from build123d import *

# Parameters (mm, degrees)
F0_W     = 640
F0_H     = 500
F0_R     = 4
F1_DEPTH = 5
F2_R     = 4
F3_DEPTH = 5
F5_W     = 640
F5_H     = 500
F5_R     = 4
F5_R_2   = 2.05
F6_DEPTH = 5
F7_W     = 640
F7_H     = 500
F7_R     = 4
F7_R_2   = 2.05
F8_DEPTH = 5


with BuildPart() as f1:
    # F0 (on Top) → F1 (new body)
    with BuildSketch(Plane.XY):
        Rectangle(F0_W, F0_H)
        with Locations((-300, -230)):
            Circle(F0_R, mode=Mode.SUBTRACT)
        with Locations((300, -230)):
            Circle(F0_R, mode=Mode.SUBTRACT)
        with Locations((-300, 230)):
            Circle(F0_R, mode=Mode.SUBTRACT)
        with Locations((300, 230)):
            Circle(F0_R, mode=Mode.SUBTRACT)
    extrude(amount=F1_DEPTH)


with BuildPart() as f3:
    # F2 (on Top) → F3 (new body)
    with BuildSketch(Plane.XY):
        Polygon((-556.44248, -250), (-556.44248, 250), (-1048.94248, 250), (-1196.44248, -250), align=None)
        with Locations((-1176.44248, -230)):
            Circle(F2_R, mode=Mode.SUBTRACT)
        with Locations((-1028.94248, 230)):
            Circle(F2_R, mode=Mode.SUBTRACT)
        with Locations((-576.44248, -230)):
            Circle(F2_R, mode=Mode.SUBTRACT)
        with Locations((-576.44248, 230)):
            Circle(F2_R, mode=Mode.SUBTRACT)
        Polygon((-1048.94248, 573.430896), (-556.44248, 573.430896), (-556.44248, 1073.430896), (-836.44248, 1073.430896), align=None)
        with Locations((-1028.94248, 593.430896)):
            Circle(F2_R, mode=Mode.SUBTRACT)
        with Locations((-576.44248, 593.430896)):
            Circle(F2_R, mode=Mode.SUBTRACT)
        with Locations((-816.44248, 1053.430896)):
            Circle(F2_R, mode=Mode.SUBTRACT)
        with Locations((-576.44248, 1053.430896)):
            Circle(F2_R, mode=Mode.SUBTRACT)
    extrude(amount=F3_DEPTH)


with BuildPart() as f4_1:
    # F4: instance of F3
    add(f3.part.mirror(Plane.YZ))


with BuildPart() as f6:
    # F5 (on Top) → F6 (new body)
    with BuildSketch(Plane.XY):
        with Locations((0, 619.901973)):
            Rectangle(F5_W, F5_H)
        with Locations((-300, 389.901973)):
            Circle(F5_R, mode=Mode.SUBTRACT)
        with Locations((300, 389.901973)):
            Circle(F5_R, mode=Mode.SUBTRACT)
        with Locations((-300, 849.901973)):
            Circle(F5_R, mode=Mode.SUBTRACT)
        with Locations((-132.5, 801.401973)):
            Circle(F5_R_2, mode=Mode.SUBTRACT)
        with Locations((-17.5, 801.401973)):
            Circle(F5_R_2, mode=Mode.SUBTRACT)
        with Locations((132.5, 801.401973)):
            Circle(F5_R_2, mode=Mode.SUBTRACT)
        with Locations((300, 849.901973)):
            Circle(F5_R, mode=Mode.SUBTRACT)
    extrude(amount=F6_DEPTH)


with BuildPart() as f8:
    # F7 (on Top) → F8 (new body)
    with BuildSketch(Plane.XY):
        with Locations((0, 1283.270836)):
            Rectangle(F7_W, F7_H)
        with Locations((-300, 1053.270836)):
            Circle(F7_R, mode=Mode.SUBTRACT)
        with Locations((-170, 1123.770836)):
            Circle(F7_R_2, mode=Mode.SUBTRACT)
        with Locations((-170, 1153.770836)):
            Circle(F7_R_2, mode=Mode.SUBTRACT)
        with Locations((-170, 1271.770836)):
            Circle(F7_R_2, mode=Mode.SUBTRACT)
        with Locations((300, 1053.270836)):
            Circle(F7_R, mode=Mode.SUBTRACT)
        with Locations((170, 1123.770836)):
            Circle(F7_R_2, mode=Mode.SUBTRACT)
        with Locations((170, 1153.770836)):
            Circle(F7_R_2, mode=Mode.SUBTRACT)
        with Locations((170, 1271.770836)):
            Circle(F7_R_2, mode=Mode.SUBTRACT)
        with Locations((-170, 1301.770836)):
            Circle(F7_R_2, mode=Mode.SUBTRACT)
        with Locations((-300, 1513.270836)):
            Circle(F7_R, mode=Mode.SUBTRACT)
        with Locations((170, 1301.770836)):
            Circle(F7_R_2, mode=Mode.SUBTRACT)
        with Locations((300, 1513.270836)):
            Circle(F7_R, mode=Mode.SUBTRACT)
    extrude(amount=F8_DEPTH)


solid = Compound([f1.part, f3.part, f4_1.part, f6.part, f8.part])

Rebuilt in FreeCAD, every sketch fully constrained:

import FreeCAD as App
import Part
import Sketcher

V = App.Vector
Q = App.Units.Quantity

doc = App.newDocument("Part")
params = doc.addObject("Spreadsheet::Sheet", "Params")
for row, (alias, value) in enumerate([
    ("sketch1_diameter", "8 mm"),
    ("sketch1_width", "640 mm"),
    ("sketch1_height", "500 mm"),
    ("pad1_length", "5 mm"),
    ("sketch2_diameter", "8 mm"),
    ("sketch2_width", "640 mm"),
    ("sketch2_width2", "280 mm"),
    ("sketch2_height", "500 mm"),
    ("sketch2_width3", "492.5 mm"),
    ("pad2_length", "5 mm"),
    ("sketch3_diameter", "8 mm"),
    ("sketch3_diameter2", "4.1 mm"),
    ("sketch3_width", "640 mm"),
    ("sketch3_height", "500 mm"),
    ("pad3_length", "5 mm"),
    ("sketch4_diameter", "8 mm"),
    ("sketch4_diameter2", "4.1 mm"),
    ("sketch4_width", "640 mm"),
    ("sketch4_height", "500 mm"),
    ("pad4_length", "5 mm"),
], start=1):
    params.set(f"A{row}", alias)
    params.set(f"B{row}", "=" + value)
    params.setAlias(f"B{row}", alias)

body = doc.addObject("PartDesign::Body", "Body")

# Sketch on XY plane
sketch1 = body.newObject("Sketcher::SketchObject", "Sketch")
sketch1.AttachmentSupport = (doc.getObject("XY_Plane"), [""])
sketch1.MapMode = "FlatFace"
sketch1.addGeometry(Part.LineSegment(V(-320, 250, 0), V(-320, -250, 0)), False)
sketch1.addGeometry(Part.LineSegment(V(-320, -250, 0), V(320, -250, 0)), False)
sketch1.addGeometry(Part.LineSegment(V(320, -250, 0), V(320, 250, 0)), False)
sketch1.addGeometry(Part.LineSegment(V(320, 250, 0), V(-320, 250, 0)), False)
sketch1.addGeometry(Part.Circle(V(-300, -230, 0), V(0, 0, 1), 4), False)
sketch1.addGeometry(Part.Circle(V(300, -230, 0), V(0, 0, 1), 4), False)
sketch1.addGeometry(Part.Circle(V(-300, 230, 0), V(0, 0, 1), 4), False)
sketch1.addGeometry(Part.Circle(V(300, 230, 0), V(0, 0, 1), 4), False)
sketch1.addConstraint(Sketcher.Constraint("Coincident", 0, 2, 1, 1))
sketch1.addConstraint(Sketcher.Constraint("Coincident", 1, 2, 2, 1))
sketch1.addConstraint(Sketcher.Constraint("Coincident", 2, 2, 3, 1))
sketch1.addConstraint(Sketcher.Constraint("Coincident", 3, 2, 0, 1))
sketch1.addConstraint(Sketcher.Constraint("Vertical", 0))
sketch1.addConstraint(Sketcher.Constraint("Horizontal", 1))
sketch1.addConstraint(Sketcher.Constraint("Vertical", 2))
sketch1.addConstraint(Sketcher.Constraint("Horizontal", 3))
sketch1.addConstraint(Sketcher.Constraint("Equal", 4, 5))
sketch1.addConstraint(Sketcher.Constraint("Equal", 5, 6))
sketch1.addConstraint(Sketcher.Constraint("Equal", 6, 7))
sketch1.addConstraint(Sketcher.Constraint("Symmetric", 5, 3, 6, 3, -1, 1))
sketch1.addConstraint(Sketcher.Constraint("Symmetric", 4, 3, 7, 3, -1, 1))
sketch1.addConstraint(Sketcher.Constraint("Symmetric", 0, 2, 2, 2, -1, 1))
sketch1.addConstraint(Sketcher.Constraint("Symmetric", 4, 3, 5, 3, -2))
sketch1.addConstraint(Sketcher.Constraint("Diameter", 4, Q("8 mm")))
sketch1.addConstraint(Sketcher.Constraint("DistanceX", 1, 1, 1, 2, Q("640 mm")))
sketch1.addConstraint(Sketcher.Constraint("DistanceY", 0, 2, 0, 1, Q("500 mm")))
sketch1.addConstraint(Sketcher.Constraint("DistanceX", 4, 3, -1, 1, Q("300 mm")))
sketch1.addConstraint(Sketcher.Constraint("DistanceY", 4, 3, -1, 1, Q("230 mm")))
sketch1.setExpression("Constraints[15]", "Params.sketch1_diameter")
sketch1.setExpression("Constraints[16]", "Params.sketch1_width")
sketch1.setExpression("Constraints[17]", "Params.sketch1_height")
pad1 = body.newObject("PartDesign::Pad", "Pad")
pad1.Profile = sketch1
pad1.setExpression("Length", "Params.pad1_length")
body2 = doc.addObject("PartDesign::Body", "Body001")
body2.AllowCompound = True

# Sketch on XY plane
sketch2 = body2.newObject("Sketcher::SketchObject", "Sketch001")
sketch2.AttachmentSupport = (doc.getObject("XY_Plane001"), [""])
sketch2.MapMode = "FlatFace"
sketch2.addGeometry(Part.LineSegment(V(-556.4, -250, 0), V(-556.4, 250, 0)), False)
sketch2.addGeometry(Part.LineSegment(V(-556.4, 250, 0), V(-1048.9, 250, 0)), False)
sketch2.addGeometry(Part.LineSegment(V(-1048.9, 250, 0), V(-1196.4, -250, 0)), False)
sketch2.addGeometry(Part.LineSegment(V(-1196.4, -250, 0), V(-556.4, -250, 0)), False)
sketch2.addGeometry(Part.Circle(V(-1176.4, -230, 0), V(0, 0, 1), 4), False)
sketch2.addGeometry(Part.Circle(V(-576.4, -230, 0), V(0, 0, 1), 4), False)
sketch2.addGeometry(Part.Circle(V(-1028.9, 230, 0), V(0, 0, 1), 4), False)
sketch2.addGeometry(Part.Circle(V(-576.4, 230, 0), V(0, 0, 1), 4), False)
sketch2.addGeometry(Part.LineSegment(V(-1048.9, 573.4, 0), V(-556.4, 573.4, 0)), False)
sketch2.addGeometry(Part.LineSegment(V(-556.4, 573.4, 0), V(-556.4, 1073.4, 0)), False)
sketch2.addGeometry(Part.LineSegment(V(-556.4, 1073.4, 0), V(-836.4, 1073.4, 0)), False)
sketch2.addGeometry(Part.LineSegment(V(-836.4, 1073.4, 0), V(-1048.9, 573.4, 0)), False)
sketch2.addGeometry(Part.Circle(V(-1028.9, 593.4, 0), V(0, 0, 1), 4), False)
sketch2.addGeometry(Part.Circle(V(-576.4, 593.4, 0), V(0, 0, 1), 4), False)
sketch2.addGeometry(Part.Circle(V(-816.4, 1053.4, 0), V(0, 0, 1), 4), False)
sketch2.addGeometry(Part.Circle(V(-576.4, 1053.4, 0), V(0, 0, 1), 4), False)
sketch2.addConstraint(Sketcher.Constraint("Coincident", 0, 2, 1, 1))
sketch2.addConstraint(Sketcher.Constraint("Coincident", 1, 2, 2, 1))
sketch2.addConstraint(Sketcher.Constraint("Coincident", 2, 2, 3, 1))
sketch2.addConstraint(Sketcher.Constraint("Coincident", 3, 2, 0, 1))
sketch2.addConstraint(Sketcher.Constraint("Coincident", 8, 2, 9, 1))
sketch2.addConstraint(Sketcher.Constraint("Coincident", 9, 2, 10, 1))
sketch2.addConstraint(Sketcher.Constraint("Coincident", 10, 2, 11, 1))
sketch2.addConstraint(Sketcher.Constraint("Coincident", 11, 2, 8, 1))
sketch2.addConstraint(Sketcher.Constraint("Vertical", 0))
sketch2.addConstraint(Sketcher.Constraint("Horizontal", 1))
sketch2.addConstraint(Sketcher.Constraint("Horizontal", 3))
sketch2.addConstraint(Sketcher.Constraint("Horizontal", 8))
sketch2.addConstraint(Sketcher.Constraint("Vertical", 9))
sketch2.addConstraint(Sketcher.Constraint("Horizontal", 10))
sketch2.addConstraint(Sketcher.Constraint("Equal", 4, 5))
sketch2.addConstraint(Sketcher.Constraint("Equal", 5, 6))
sketch2.addConstraint(Sketcher.Constraint("Equal", 6, 7))
sketch2.addConstraint(Sketcher.Constraint("Equal", 7, 12))
sketch2.addConstraint(Sketcher.Constraint("Equal", 12, 13))
sketch2.addConstraint(Sketcher.Constraint("Equal", 13, 14))
sketch2.addConstraint(Sketcher.Constraint("Equal", 14, 15))
sketch2.addConstraint(Sketcher.Constraint("Symmetric", 5, 3, 7, 3, -1))
sketch2.addConstraint(Sketcher.Constraint("Horizontal", 4, 3, 5, 3))
sketch2.addConstraint(Sketcher.Constraint("Horizontal", 6, 3, 7, 3))
sketch2.addConstraint(Sketcher.Constraint("Horizontal", 12, 3, 13, 3))
sketch2.addConstraint(Sketcher.Constraint("Horizontal", 14, 3, 15, 3))
sketch2.addConstraint(Sketcher.Constraint("Vertical", 6, 3, 12, 3))
sketch2.addConstraint(Sketcher.Constraint("Vertical", 7, 3, 13, 3))
sketch2.addConstraint(Sketcher.Constraint("Vertical", 13, 3, 15, 3))
sketch2.addConstraint(Sketcher.Constraint("Vertical", 3, 2, 8, 2))
sketch2.addConstraint(Sketcher.Constraint("Vertical", 1, 2, 11, 2))
sketch2.addConstraint(Sketcher.Constraint("Equal", 0, 9))
sketch2.addConstraint(Sketcher.Constraint("Diameter", 4, Q("8 mm")))
sketch2.addConstraint(Sketcher.Constraint("DistanceX", 3, 1, 3, 2, Q("640 mm")))
sketch2.addConstraint(Sketcher.Constraint("DistanceX", 10, 2, 10, 1, Q("280 mm")))
sketch2.addConstraint(Sketcher.Constraint("DistanceY", 0, 1, 0, 2, Q("500 mm")))
sketch2.addConstraint(Sketcher.Constraint("DistanceX", 1, 2, 1, 1, Q("492.5 mm")))
sketch2.addConstraint(Sketcher.Constraint("DistanceY", 4, 3, -1, 1, Q("230 mm")))
sketch2.addConstraint(Sketcher.Constraint("DistanceY", -1, 1, 0, 2, Q("250 mm")))
sketch2.addConstraint(Sketcher.Constraint("DistanceX", 4, 3, 5, 3, Q("600 mm")))
sketch2.addConstraint(Sketcher.Constraint("DistanceY", 12, 3, 14, 3, Q("460 mm")))
sketch2.addConstraint(Sketcher.Constraint("DistanceX", 14, 3, 13, 3, Q("240 mm")))
sketch2.addConstraint(Sketcher.Constraint("DistanceX", 7, 3, 0, 2, Q("20 mm")))
sketch2.addConstraint(Sketcher.Constraint("DistanceX", 1, 2, 6, 3, Q("20 mm")))
sketch2.addConstraint(Sketcher.Constraint("DistanceY", 8, 2, 13, 3, Q("20 mm")))
sketch2.addConstraint(Sketcher.Constraint("DistanceX", 4, 3, -1, 1, Q("1176.44248 mm")))
sketch2.addConstraint(Sketcher.Constraint("DistanceY", -1, 1, 12, 3, Q("593.430896 mm")))
sketch2.setExpression("Constraints[32]", "Params.sketch2_diameter")
sketch2.setExpression("Constraints[33]", "Params.sketch2_width")
sketch2.setExpression("Constraints[34]", "Params.sketch2_width2")
sketch2.setExpression("Constraints[35]", "Params.sketch2_height")
sketch2.setExpression("Constraints[36]", "Params.sketch2_width3")
pad2 = body2.newObject("PartDesign::Pad", "Pad001")
pad2.Profile = sketch2
pad2.setExpression("Length", "Params.pad2_length")
body3 = doc.addObject("PartDesign::Body", "Body002")
body3.AllowCompound = True
doc.recompute()

mirroring = doc.addObject("Part::Mirroring", "Mirroring")
mirroring.Source = body2
mirroring.Base = V(0, 0, 0)
mirroring.Normal = V(1, 0, 0)
body3.BaseFeature = mirroring
doc.recompute()
body4 = doc.addObject("PartDesign::Body", "Body003")

# Sketch on XY plane
sketch3 = body4.newObject("Sketcher::SketchObject", "Sketch002")
sketch3.AttachmentSupport = (doc.getObject("XY_Plane003"), [""])
sketch3.MapMode = "FlatFace"
sketch3.addGeometry(Part.LineSegment(V(-320, 869.9, 0), V(-320, 369.9, 0)), False)
sketch3.addGeometry(Part.LineSegment(V(-320, 369.9, 0), V(320, 369.9, 0)), False)
sketch3.addGeometry(Part.LineSegment(V(320, 369.9, 0), V(320, 869.9, 0)), False)
sketch3.addGeometry(Part.LineSegment(V(320, 869.9, 0), V(-320, 869.9, 0)), False)
sketch3.addGeometry(Part.Circle(V(-300, 389.9, 0), V(0, 0, 1), 4), False)
sketch3.addGeometry(Part.Circle(V(300, 389.9, 0), V(0, 0, 1), 4), False)
sketch3.addGeometry(Part.Circle(V(-300, 849.9, 0), V(0, 0, 1), 4), False)
sketch3.addGeometry(Part.Circle(V(-132.5, 801.4, 0), V(0, 0, 1), 2), False)
sketch3.addGeometry(Part.Circle(V(-17.5, 801.4, 0), V(0, 0, 1), 2), False)
sketch3.addGeometry(Part.Circle(V(132.5, 801.4, 0), V(0, 0, 1), 2), False)
sketch3.addGeometry(Part.Circle(V(300, 849.9, 0), V(0, 0, 1), 4), False)
sketch3.addConstraint(Sketcher.Constraint("Coincident", 0, 2, 1, 1))
sketch3.addConstraint(Sketcher.Constraint("Coincident", 1, 2, 2, 1))
sketch3.addConstraint(Sketcher.Constraint("Coincident", 2, 2, 3, 1))
sketch3.addConstraint(Sketcher.Constraint("Coincident", 3, 2, 0, 1))
sketch3.addConstraint(Sketcher.Constraint("Vertical", 0))
sketch3.addConstraint(Sketcher.Constraint("Horizontal", 1))
sketch3.addConstraint(Sketcher.Constraint("Vertical", 2))
sketch3.addConstraint(Sketcher.Constraint("Horizontal", 3))
sketch3.addConstraint(Sketcher.Constraint("Equal", 4, 5))
sketch3.addConstraint(Sketcher.Constraint("Equal", 5, 6))
sketch3.addConstraint(Sketcher.Constraint("Equal", 7, 8))
sketch3.addConstraint(Sketcher.Constraint("Equal", 8, 9))
sketch3.addConstraint(Sketcher.Constraint("Equal", 6, 10))
sketch3.addConstraint(Sketcher.Constraint("Symmetric", 4, 3, 5, 3, -2))
sketch3.addConstraint(Sketcher.Constraint("Symmetric", 7, 3, 9, 3, -2))
sketch3.addConstraint(Sketcher.Constraint("Symmetric", 6, 3, 10, 3, -2))
sketch3.addConstraint(Sketcher.Constraint("Horizontal", 7, 3, 8, 3))
sketch3.addConstraint(Sketcher.Constraint("Vertical", 4, 3, 6, 3))
sketch3.addConstraint(Sketcher.Constraint("Diameter", 4, Q("8 mm")))
sketch3.addConstraint(Sketcher.Constraint("Diameter", 7, Q("4.1 mm")))
sketch3.addConstraint(Sketcher.Constraint("DistanceX", 1, 1, 1, 2, Q("640 mm")))
sketch3.addConstraint(Sketcher.Constraint("DistanceY", 0, 2, 0, 1, Q("500 mm")))
sketch3.addConstraint(Sketcher.Constraint("DistanceX", 4, 3, -1, 1, Q("300 mm")))
sketch3.addConstraint(Sketcher.Constraint("DistanceX", 0, 2, -1, 1, Q("320 mm")))
sketch3.addConstraint(Sketcher.Constraint("DistanceY", 4, 3, 6, 3, Q("460 mm")))
sketch3.addConstraint(Sketcher.Constraint("DistanceX", 7, 3, 8, 3, Q("115 mm")))
sketch3.addConstraint(Sketcher.Constraint("DistanceX", 8, 3, 9, 3, Q("150 mm")))
sketch3.addConstraint(Sketcher.Constraint("DistanceY", 0, 2, 4, 3, Q("20 mm")))
sketch3.addConstraint(Sketcher.Constraint("DistanceY", 7, 3, 6, 3, Q("48.5 mm")))
sketch3.addConstraint(Sketcher.Constraint("DistanceY", -1, 1, 4, 3, Q("389.901973 mm")))
sketch3.setExpression("Constraints[18]", "Params.sketch3_diameter")
sketch3.setExpression("Constraints[19]", "Params.sketch3_diameter2")
sketch3.setExpression("Constraints[20]", "Params.sketch3_width")
sketch3.setExpression("Constraints[21]", "Params.sketch3_height")
pad3 = body4.newObject("PartDesign::Pad", "Pad002")
pad3.Profile = sketch3
pad3.setExpression("Length", "Params.pad3_length")
body5 = doc.addObject("PartDesign::Body", "Body004")

# Sketch on XY plane
sketch4 = body5.newObject("Sketcher::SketchObject", "Sketch003")
sketch4.AttachmentSupport = (doc.getObject("XY_Plane004"), [""])
sketch4.MapMode = "FlatFace"
sketch4.addGeometry(Part.LineSegment(V(-320, 1533.3, 0), V(-320, 1033.3, 0)), False)
sketch4.addGeometry(Part.LineSegment(V(-320, 1033.3, 0), V(320, 1033.3, 0)), False)
sketch4.addGeometry(Part.LineSegment(V(320, 1033.3, 0), V(320, 1533.3, 0)), False)
sketch4.addGeometry(Part.LineSegment(V(320, 1533.3, 0), V(-320, 1533.3, 0)), False)
sketch4.addGeometry(Part.Circle(V(-300, 1053.3, 0), V(0, 0, 1), 4), False)
sketch4.addGeometry(Part.Circle(V(-170, 1123.8, 0), V(0, 0, 1), 2), False)
sketch4.addGeometry(Part.Circle(V(-170, 1153.8, 0), V(0, 0, 1), 2), False)
sketch4.addGeometry(Part.Circle(V(-170, 1271.8, 0), V(0, 0, 1), 2), False)
sketch4.addGeometry(Part.Circle(V(300, 1053.3, 0), V(0, 0, 1), 4), False)
sketch4.addGeometry(Part.Circle(V(170, 1123.8, 0), V(0, 0, 1), 2), False)
sketch4.addGeometry(Part.Circle(V(170, 1153.8, 0), V(0, 0, 1), 2), False)
sketch4.addGeometry(Part.Circle(V(170, 1271.8, 0), V(0, 0, 1), 2), False)
sketch4.addGeometry(Part.Circle(V(-170, 1301.8, 0), V(0, 0, 1), 2), False)
sketch4.addGeometry(Part.Circle(V(-300, 1513.3, 0), V(0, 0, 1), 4), False)
sketch4.addGeometry(Part.Circle(V(170, 1301.8, 0), V(0, 0, 1), 2), False)
sketch4.addGeometry(Part.Circle(V(300, 1513.3, 0), V(0, 0, 1), 4), False)
sketch4.addConstraint(Sketcher.Constraint("Coincident", 0, 2, 1, 1))
sketch4.addConstraint(Sketcher.Constraint("Coincident", 1, 2, 2, 1))
sketch4.addConstraint(Sketcher.Constraint("Coincident", 2, 2, 3, 1))
sketch4.addConstraint(Sketcher.Constraint("Coincident", 3, 2, 0, 1))
sketch4.addConstraint(Sketcher.Constraint("Vertical", 0))
sketch4.addConstraint(Sketcher.Constraint("Horizontal", 1))
sketch4.addConstraint(Sketcher.Constraint("Vertical", 2))
sketch4.addConstraint(Sketcher.Constraint("Horizontal", 3))
sketch4.addConstraint(Sketcher.Constraint("Equal", 5, 6))
sketch4.addConstraint(Sketcher.Constraint("Equal", 6, 7))
sketch4.addConstraint(Sketcher.Constraint("Equal", 4, 8))
sketch4.addConstraint(Sketcher.Constraint("Equal", 7, 9))
sketch4.addConstraint(Sketcher.Constraint("Equal", 9, 10))
sketch4.addConstraint(Sketcher.Constraint("Equal", 10, 11))
sketch4.addConstraint(Sketcher.Constraint("Equal", 11, 12))
sketch4.addConstraint(Sketcher.Constraint("Equal", 8, 13))
sketch4.addConstraint(Sketcher.Constraint("Equal", 12, 14))
sketch4.addConstraint(Sketcher.Constraint("Equal", 13, 15))
sketch4.addConstraint(Sketcher.Constraint("Symmetric", 4, 3, 8, 3, -2))
sketch4.addConstraint(Sketcher.Constraint("Symmetric", 5, 3, 9, 3, -2))
sketch4.addConstraint(Sketcher.Constraint("Symmetric", 6, 3, 10, 3, -2))
sketch4.addConstraint(Sketcher.Constraint("Symmetric", 7, 3, 11, 3, -2))
sketch4.addConstraint(Sketcher.Constraint("Symmetric", 12, 3, 14, 3, -2))
sketch4.addConstraint(Sketcher.Constraint("Symmetric", 13, 3, 15, 3, -2))
sketch4.addConstraint(Sketcher.Constraint("Vertical", 5, 3, 6, 3))
sketch4.addConstraint(Sketcher.Constraint("Vertical", 6, 3, 7, 3))
sketch4.addConstraint(Sketcher.Constraint("Vertical", 7, 3, 12, 3))
sketch4.addConstraint(Sketcher.Constraint("Vertical", 4, 3, 13, 3))
sketch4.addConstraint(Sketcher.Constraint("Diameter", 4, Q("8 mm")))
sketch4.addConstraint(Sketcher.Constraint("Diameter", 5, Q("4.1 mm")))
sketch4.addConstraint(Sketcher.Constraint("DistanceX", 1, 1, 1, 2, Q("640 mm")))
sketch4.addConstraint(Sketcher.Constraint("DistanceY", 0, 2, 0, 1, Q("500 mm")))
sketch4.addConstraint(Sketcher.Constraint("DistanceX", 4, 3, -1, 1, Q("300 mm")))
sketch4.addConstraint(Sketcher.Constraint("DistanceX", 5, 3, -1, 1, Q("170 mm")))
sketch4.addConstraint(Sketcher.Constraint("DistanceX", 0, 2, -1, 1, Q("320 mm")))
sketch4.addConstraint(Sketcher.Constraint("DistanceY", 5, 3, 6, 3, Q("30 mm")))
sketch4.addConstraint(Sketcher.Constraint("DistanceY", 6, 3, 7, 3, Q("118 mm")))
sketch4.addConstraint(Sketcher.Constraint("DistanceY", 7, 3, 12, 3, Q("30 mm")))
sketch4.addConstraint(Sketcher.Constraint("DistanceY", 4, 3, 13, 3, Q("460 mm")))
sketch4.addConstraint(Sketcher.Constraint("DistanceY", 0, 2, 4, 3, Q("20 mm")))
sketch4.addConstraint(Sketcher.Constraint("DistanceY", 4, 3, 5, 3, Q("70.5 mm")))
sketch4.addConstraint(Sketcher.Constraint("DistanceY", -1, 1, 4, 3, Q("1053.270836 mm")))
sketch4.setExpression("Constraints[28]", "Params.sketch4_diameter")
sketch4.setExpression("Constraints[29]", "Params.sketch4_diameter2")
sketch4.setExpression("Constraints[30]", "Params.sketch4_width")
sketch4.setExpression("Constraints[31]", "Params.sketch4_height")
pad4 = body5.newObject("PartDesign::Pad", "Pad003")
pad4.Profile = sketch4
pad4.setExpression("Length", "Params.pad4_length")
mirroring.Visibility = False

doc.recompute()
